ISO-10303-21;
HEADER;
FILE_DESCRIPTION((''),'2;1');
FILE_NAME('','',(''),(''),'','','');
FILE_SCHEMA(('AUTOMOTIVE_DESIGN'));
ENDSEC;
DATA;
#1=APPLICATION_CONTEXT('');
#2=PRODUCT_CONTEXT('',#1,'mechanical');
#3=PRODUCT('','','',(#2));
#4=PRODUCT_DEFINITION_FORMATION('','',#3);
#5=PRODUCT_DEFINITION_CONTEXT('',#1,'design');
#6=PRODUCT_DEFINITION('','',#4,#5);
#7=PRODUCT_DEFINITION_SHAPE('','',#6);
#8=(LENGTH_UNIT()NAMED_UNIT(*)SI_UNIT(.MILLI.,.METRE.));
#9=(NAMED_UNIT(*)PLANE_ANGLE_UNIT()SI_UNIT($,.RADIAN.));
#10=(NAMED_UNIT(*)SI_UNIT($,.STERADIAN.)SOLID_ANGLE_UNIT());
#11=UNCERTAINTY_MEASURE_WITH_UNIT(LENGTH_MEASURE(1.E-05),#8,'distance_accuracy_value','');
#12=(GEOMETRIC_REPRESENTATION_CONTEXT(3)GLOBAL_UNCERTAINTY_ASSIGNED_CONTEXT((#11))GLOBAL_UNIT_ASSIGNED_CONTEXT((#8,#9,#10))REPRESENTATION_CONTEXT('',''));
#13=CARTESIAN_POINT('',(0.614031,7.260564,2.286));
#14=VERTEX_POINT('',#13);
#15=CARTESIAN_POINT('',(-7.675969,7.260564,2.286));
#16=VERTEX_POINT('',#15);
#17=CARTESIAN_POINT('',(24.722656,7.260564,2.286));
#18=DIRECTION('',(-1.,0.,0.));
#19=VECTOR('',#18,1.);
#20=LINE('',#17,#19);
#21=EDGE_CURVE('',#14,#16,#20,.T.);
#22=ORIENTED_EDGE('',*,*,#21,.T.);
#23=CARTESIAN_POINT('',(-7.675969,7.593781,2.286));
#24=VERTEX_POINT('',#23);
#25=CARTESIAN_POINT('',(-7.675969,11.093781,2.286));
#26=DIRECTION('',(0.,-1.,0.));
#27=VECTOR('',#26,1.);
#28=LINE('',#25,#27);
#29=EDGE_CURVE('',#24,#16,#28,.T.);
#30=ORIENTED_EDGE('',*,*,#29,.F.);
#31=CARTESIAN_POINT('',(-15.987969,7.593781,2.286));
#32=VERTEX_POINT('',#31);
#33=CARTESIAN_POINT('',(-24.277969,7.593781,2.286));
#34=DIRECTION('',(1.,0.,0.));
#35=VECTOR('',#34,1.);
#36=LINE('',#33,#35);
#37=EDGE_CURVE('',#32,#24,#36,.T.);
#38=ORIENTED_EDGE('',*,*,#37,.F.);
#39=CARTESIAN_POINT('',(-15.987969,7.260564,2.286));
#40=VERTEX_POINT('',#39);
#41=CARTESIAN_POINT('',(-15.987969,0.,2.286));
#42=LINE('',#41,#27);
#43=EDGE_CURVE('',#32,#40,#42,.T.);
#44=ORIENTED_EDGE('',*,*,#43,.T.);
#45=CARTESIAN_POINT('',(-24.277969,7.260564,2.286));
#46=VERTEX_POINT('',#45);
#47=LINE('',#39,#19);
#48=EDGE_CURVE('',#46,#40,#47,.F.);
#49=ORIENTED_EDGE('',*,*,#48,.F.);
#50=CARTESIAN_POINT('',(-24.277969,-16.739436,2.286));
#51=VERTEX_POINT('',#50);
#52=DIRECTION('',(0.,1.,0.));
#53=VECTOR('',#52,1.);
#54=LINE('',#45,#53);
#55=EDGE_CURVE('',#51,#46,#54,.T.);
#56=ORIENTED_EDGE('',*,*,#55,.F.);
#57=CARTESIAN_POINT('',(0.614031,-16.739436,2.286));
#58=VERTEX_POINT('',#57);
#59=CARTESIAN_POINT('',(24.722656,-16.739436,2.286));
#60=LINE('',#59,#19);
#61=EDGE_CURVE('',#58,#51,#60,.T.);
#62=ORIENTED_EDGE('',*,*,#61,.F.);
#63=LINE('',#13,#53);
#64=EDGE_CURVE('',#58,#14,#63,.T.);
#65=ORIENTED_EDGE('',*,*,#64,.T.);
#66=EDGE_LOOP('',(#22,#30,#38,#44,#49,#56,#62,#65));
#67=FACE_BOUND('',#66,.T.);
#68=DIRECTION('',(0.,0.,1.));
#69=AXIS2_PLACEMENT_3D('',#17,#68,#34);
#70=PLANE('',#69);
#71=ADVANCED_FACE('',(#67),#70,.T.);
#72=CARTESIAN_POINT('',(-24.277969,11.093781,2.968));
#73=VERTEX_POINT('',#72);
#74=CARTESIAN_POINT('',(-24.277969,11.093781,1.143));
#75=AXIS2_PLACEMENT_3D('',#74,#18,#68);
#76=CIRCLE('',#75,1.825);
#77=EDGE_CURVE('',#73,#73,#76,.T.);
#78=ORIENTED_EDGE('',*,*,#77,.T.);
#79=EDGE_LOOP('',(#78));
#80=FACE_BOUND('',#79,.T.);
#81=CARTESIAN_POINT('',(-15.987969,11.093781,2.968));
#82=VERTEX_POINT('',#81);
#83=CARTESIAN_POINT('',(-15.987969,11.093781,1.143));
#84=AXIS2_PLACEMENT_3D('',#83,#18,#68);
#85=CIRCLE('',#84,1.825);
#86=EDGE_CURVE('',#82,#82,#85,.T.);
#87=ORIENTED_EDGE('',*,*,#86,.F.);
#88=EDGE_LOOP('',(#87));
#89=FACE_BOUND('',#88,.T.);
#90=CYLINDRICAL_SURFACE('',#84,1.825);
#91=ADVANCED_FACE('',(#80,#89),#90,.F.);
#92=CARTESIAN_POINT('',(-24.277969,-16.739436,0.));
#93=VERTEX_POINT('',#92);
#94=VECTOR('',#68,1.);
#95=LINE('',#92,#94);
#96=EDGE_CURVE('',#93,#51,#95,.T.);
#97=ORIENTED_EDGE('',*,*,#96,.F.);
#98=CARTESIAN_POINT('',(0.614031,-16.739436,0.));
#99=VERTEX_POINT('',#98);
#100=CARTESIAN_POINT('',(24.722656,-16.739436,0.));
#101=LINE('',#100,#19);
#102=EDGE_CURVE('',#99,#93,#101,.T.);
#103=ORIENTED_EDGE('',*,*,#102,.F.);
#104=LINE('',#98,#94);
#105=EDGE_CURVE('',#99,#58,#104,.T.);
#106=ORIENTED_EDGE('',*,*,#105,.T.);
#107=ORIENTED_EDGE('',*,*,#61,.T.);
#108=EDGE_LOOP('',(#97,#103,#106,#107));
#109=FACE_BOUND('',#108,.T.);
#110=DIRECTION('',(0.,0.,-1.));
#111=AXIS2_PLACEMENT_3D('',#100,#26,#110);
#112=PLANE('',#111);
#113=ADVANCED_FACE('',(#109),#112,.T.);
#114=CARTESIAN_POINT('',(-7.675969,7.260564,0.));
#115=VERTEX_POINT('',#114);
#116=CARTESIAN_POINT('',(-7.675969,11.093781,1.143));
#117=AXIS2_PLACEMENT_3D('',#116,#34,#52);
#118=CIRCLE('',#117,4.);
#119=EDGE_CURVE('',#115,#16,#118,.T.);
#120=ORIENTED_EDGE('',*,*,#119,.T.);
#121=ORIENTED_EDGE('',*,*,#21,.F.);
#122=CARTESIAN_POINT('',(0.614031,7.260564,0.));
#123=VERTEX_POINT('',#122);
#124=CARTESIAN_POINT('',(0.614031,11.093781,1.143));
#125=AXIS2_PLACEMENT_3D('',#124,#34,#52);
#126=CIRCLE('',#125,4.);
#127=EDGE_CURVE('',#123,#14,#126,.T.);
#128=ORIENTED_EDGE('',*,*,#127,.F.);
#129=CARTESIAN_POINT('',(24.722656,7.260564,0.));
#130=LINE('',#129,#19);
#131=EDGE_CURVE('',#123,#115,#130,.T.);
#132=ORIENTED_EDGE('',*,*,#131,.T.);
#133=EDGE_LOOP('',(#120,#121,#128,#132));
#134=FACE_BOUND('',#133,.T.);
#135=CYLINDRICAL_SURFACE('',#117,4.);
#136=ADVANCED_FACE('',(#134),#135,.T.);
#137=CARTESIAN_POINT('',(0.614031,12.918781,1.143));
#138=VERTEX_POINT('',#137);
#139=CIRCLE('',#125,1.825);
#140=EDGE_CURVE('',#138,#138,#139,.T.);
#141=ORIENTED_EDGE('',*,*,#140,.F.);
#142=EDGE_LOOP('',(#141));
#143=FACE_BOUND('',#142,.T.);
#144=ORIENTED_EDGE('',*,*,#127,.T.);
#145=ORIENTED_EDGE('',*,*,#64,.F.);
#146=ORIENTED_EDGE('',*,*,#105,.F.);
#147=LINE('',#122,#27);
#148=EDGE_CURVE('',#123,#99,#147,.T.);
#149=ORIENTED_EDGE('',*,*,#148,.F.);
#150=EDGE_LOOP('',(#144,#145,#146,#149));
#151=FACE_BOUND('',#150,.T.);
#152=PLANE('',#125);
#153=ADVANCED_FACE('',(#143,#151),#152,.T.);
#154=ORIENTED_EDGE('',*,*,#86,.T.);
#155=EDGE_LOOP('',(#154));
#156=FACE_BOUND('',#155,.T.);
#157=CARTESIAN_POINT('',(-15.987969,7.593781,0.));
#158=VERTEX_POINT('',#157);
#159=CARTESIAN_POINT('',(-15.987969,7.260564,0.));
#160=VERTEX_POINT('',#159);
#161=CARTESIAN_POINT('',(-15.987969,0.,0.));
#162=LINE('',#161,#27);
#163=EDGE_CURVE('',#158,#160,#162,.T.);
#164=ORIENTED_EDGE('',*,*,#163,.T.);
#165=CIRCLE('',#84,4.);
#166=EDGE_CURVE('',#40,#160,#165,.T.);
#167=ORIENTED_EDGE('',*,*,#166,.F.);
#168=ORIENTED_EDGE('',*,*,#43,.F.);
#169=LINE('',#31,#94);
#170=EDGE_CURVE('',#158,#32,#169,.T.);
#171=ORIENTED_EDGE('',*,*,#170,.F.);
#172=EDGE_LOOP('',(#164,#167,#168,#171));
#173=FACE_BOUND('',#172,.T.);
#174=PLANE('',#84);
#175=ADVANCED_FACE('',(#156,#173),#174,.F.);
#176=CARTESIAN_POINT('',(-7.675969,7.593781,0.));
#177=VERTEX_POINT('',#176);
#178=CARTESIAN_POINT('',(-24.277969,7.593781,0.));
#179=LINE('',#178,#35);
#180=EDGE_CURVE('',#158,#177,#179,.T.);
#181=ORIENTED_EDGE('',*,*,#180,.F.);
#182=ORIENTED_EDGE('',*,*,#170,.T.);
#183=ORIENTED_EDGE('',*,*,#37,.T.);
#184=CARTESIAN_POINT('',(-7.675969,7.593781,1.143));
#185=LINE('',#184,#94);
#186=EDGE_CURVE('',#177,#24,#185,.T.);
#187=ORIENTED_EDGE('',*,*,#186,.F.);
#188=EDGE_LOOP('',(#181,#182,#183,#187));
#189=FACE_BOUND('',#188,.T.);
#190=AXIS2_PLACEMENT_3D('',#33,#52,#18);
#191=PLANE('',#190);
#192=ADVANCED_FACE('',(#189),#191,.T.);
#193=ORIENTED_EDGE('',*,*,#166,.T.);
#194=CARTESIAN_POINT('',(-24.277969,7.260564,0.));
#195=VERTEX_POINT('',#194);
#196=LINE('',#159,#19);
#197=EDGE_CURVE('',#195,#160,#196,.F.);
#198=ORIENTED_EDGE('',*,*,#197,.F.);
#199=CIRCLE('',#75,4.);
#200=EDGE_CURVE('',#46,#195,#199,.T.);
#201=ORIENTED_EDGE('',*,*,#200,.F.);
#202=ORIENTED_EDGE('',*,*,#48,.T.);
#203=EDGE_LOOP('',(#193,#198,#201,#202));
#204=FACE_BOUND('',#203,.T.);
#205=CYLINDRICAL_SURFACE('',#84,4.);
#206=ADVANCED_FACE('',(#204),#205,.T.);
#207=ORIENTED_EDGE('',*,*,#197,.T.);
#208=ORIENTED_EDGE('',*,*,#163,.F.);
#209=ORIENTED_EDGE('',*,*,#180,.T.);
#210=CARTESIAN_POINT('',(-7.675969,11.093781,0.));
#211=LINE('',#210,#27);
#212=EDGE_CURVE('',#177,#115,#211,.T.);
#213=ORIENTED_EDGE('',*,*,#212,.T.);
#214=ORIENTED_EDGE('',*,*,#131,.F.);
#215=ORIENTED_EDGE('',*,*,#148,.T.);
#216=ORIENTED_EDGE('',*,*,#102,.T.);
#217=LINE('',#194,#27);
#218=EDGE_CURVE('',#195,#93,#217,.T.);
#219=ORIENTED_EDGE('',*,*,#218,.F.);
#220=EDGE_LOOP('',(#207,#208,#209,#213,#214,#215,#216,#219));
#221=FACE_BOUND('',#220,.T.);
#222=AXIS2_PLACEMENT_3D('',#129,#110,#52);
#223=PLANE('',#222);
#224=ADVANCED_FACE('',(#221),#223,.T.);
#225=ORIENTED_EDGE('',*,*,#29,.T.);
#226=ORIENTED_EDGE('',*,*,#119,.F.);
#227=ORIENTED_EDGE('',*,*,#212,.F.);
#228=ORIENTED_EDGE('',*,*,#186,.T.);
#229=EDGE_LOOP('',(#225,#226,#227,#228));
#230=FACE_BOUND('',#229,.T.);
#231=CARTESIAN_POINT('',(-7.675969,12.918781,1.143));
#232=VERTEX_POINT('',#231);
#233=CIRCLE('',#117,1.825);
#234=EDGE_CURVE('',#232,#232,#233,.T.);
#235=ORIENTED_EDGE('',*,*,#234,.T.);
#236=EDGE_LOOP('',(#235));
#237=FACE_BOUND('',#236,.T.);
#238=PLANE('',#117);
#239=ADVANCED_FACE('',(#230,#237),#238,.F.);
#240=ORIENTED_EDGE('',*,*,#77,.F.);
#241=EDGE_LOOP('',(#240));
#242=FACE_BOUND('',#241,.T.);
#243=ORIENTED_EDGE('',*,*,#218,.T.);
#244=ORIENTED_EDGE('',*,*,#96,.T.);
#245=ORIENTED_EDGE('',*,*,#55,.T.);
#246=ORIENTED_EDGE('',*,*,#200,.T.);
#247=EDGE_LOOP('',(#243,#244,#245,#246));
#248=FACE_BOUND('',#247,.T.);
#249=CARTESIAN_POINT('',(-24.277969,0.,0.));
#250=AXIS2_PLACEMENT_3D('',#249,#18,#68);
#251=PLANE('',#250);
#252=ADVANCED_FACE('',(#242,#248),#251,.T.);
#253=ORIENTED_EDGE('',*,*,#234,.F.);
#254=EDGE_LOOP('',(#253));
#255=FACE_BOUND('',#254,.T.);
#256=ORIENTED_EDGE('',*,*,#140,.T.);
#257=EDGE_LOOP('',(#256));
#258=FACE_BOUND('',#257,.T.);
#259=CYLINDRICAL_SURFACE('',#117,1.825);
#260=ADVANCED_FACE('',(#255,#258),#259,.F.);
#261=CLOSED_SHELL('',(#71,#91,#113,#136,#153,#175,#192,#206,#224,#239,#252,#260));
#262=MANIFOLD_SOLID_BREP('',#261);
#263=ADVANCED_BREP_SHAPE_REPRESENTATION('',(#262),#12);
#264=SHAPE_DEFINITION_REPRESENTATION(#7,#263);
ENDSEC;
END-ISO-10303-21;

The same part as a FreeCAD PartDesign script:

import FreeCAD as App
import Part
import Sketcher
Q = App.Units.Quantity

doc = App.newDocument("Part")
body = doc.addObject("PartDesign::Body", "Body")

sketch1 = body.newObject("Sketcher::SketchObject", "Sketch")
sketch1.AttachmentSupport = (doc.getObject("XY_Plane"), [""])
sketch1.MapMode = "FlatFace"
sketch1.addGeometry([
    Part.LineSegment(App.Vector(-24, 8, 0), App.Vector(-24, 0, 0)),
    Part.LineSegment(App.Vector(-24, 0, 0), App.Vector(1, 0, 0)),
    Part.LineSegment(App.Vector(1, 0, 0), App.Vector(1, 8, 0)),
    Part.LineSegment(App.Vector(1, 8, 0), App.Vector(-24, 8, 0)),
], False)
sketch1.addConstraint([
    Sketcher.Constraint("Coincident", 0, 2, 1, 1),
    Sketcher.Constraint("Coincident", 1, 2, 2, 1),
    Sketcher.Constraint("Coincident", 2, 2, 3, 1),
    Sketcher.Constraint("Coincident", 3, 2, 0, 1),
    Sketcher.Constraint("Vertical", 0),
    Sketcher.Constraint("Horizontal", 1),
    Sketcher.Constraint("Vertical", 2),
    Sketcher.Constraint("Horizontal", 3),
    Sketcher.Constraint("DistanceX", 1, 1, 1, 2, Q("0.98 in")),
    Sketcher.Constraint("DistanceY", 0, 2, 0, 1, Q("0.31 in")),
    Sketcher.Constraint("DistanceX", 0, 2, -1, 1, Q("24.277969 mm")),
    Sketcher.Constraint("DistanceY", 0, 2, -1, 1, Q("0.280219 mm")),
])
pad1 = body.newObject("PartDesign::Pad", "Pad")
pad1.Profile = sketch1
pad1.Length = Q("0.09 in")

sketch2 = body.newObject("Sketcher::SketchObject", "Sketch001")
sketch2.AttachmentSupport = (doc.getObject("YZ_Plane"), [""])
sketch2.MapMode = "FlatFace"
sketch2.AttachmentOffset = App.Placement(App.Vector(0, 0, -24.277969), App.Rotation())
sketch2.addGeometry(Part.Circle(App.Vector(11.1, 1.1, 0), App.Vector(0, 0, 1), 4), False)
sketch2.addConstraint([
    Sketcher.Constraint("Diameter", 0, Q("8 mm")),
    Sketcher.Constraint("DistanceY", -1, 1, 0, 3, Q("0.045 in")),
    Sketcher.Constraint("DistanceX", -1, 1, 0, 3, Q("11.093781 mm")),
])
pad2 = body.newObject("PartDesign::Pad", "Pad001")
pad2.Profile = sketch2
pad2.Length = 8.29

sketch3 = body.newObject("Sketcher::SketchObject", "Sketch002")
sketch3.AttachmentSupport = (doc.getObject("YZ_Plane"), [""])
sketch3.MapMode = "FlatFace"
sketch3.AttachmentOffset = App.Placement(App.Vector(0, 0, -24.277969), App.Rotation())
sketch3.addGeometry(Part.Circle(App.Vector(11.1, 1.1, 0), App.Vector(0, 0, 1), 1.8), False)
sketch3.addConstraint([
    Sketcher.Constraint("Diameter", 0, Q("3.65 mm")),
    Sketcher.Constraint("DistanceY", -1, 1, 0, 3, Q("0.045 in")),
    Sketcher.Constraint("DistanceX", -1, 1, 0, 3, Q("11.093781 mm")),
])
pocket1 = body.newObject("PartDesign::Pocket", "Pocket")
pocket1.Profile = sketch3
pocket1.Length = 8.29
pocket1.Reversed = True
body2 = doc.addObject("PartDesign::Body", "Body001")

sketch4 = body2.newObject("Sketcher::SketchObject", "Sketch003")
sketch4.AttachmentSupport = (doc.getObject("YZ_Plane001"), [""])
sketch4.MapMode = "FlatFace"
sketch4.AttachmentOffset = App.Placement(App.Vector(0, 0, 0.614031), App.Rotation())
sketch4.addGeometry(Part.Circle(App.Vector(11.1, 1.1, 0), App.Vector(0, 0, 1), 4), False)
sketch4.addConstraint([
    Sketcher.Constraint("Diameter", 0, Q("8 mm")),
    Sketcher.Constraint("DistanceY", -1, 1, 0, 3, Q("0.045 in")),
    Sketcher.Constraint("DistanceX", -1, 1, 0, 3, Q("11.093781 mm")),
])
pad3 = body2.newObject("PartDesign::Pad", "Pad002")
pad3.Profile = sketch4
pad3.Length = 8.29
pad3.Reversed = True

sketch5 = body2.newObject("Sketcher::SketchObject", "Sketch004")
sketch5.AttachmentSupport = (doc.getObject("YZ_Plane001"), [""])
sketch5.MapMode = "FlatFace"
sketch5.AttachmentOffset = App.Placement(App.Vector(0, 0, 0.614031), App.Rotation())
sketch5.addGeometry(Part.Circle(App.Vector(11.1, 1.1, 0), App.Vector(0, 0, 1), 1.8), False)
sketch5.addConstraint([
    Sketcher.Constraint("Diameter", 0, Q("3.65 mm")),
    Sketcher.Constraint("DistanceY", -1, 1, 0, 3, Q("0.045 in")),
    Sketcher.Constraint("DistanceX", -1, 1, 0, 3, Q("11.093781 mm")),
])
pocket2 = body2.newObject("PartDesign::Pocket", "Pocket001")
pocket2.Profile = sketch5
pocket2.Length = 8.29
doc.recompute()

boolean = body.newObject("PartDesign::Boolean", "Boolean")
boolean.Type = "Fuse"
boolean.addObjects([body2])

sketch6 = body.newObject("Sketcher::SketchObject", "Sketch005")
sketch6.AttachmentSupport = (doc.getObject("YZ_Plane"), [""])
sketch6.MapMode = "FlatFace"
sketch6.AttachmentOffset = App.Placement(App.Vector(0, 0, -24.277969), App.Rotation())
sketch6.addGeometry([
    Part.LineSegment(App.Vector(7.3, 0, 0), App.Vector(-16.7, 0, 0)),
    Part.LineSegment(App.Vector(-16.7, 0, 0), App.Vector(-16.7, 2.3, 0)),
    Part.LineSegment(App.Vector(-16.7, 2.3, 0), App.Vector(7.3, 2.3, 0)),
    Part.LineSegment(App.Vector(7.3, 2.3, 0), App.Vector(7.3, 0, 0)),
], False)
sketch6.addConstraint([
    Sketcher.Constraint("Coincident", 0, 2, 1, 1),
    Sketcher.Constraint("Coincident", 1, 2, 2, 1),
    Sketcher.Constraint("Coincident", 2, 2, 3, 1),
    Sketcher.Constraint("Coincident", 3, 2, 0, 1),
    Sketcher.Constraint("Horizontal", 0),
    Sketcher.Constraint("Vertical", 1),
    Sketcher.Constraint("Horizontal", 2),
    Sketcher.Constraint("Vertical", 3),
    Sketcher.Constraint("PointOnObject", 0, 2, -1),
    Sketcher.Constraint("DistanceY", 1, 1, 1, 2, Q("0.09 in")),
    Sketcher.Constraint("DistanceX", 0, 2, 0, 1, Q("24 mm")),
    Sketcher.Constraint("DistanceX", 0, 2, -1, 1, Q("16.739436 mm")),
])
pad4 = body.newObject("PartDesign::Pad", "Pad003")
pad4.Profile = sketch6
pad4.Length = Q("0.98 in")

doc.recompute()
